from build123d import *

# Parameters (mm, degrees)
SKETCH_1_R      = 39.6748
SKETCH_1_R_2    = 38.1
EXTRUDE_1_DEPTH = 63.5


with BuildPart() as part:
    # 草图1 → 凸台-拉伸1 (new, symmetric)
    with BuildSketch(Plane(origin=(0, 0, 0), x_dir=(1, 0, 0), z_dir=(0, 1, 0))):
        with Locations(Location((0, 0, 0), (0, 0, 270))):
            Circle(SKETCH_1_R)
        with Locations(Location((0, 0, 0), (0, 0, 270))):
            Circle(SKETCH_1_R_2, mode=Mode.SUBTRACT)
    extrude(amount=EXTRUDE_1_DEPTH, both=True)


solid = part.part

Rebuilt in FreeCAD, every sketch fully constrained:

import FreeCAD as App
import Part
import Sketcher
Q = App.Units.Quantity

doc = App.newDocument("Part")
body = doc.addObject("PartDesign::Body", "Body")

sketch1 = body.newObject("Sketcher::SketchObject", "Sketch")
sketch1.AttachmentSupport = (doc.getObject("XZ_Plane"), [""])
sketch1.MapMode = "FlatFace"
sketch1.addGeometry(Part.Circle(App.Vector(0, 0, 0), App.Vector(0, 0, 1), 39.6748), False)
sketch1.addGeometry(Part.Circle(App.Vector(0, 0, 0), App.Vector(0, 0, 1), 38.1), False)
sketch1.addConstraint(Sketcher.Constraint("Coincident", 0, 3, -1, 1))
sketch1.addConstraint(Sketcher.Constraint("Coincident", 1, 3, -1, 1))
sketch1.addConstraint(Sketcher.Constraint("Diameter", 1, Q("3 in")))
sketch1.addConstraint(Sketcher.Constraint("Diameter", 0, Q("3.124 in")))
pad1 = body.newObject("PartDesign::Pad", "Pad")
pad1.Profile = sketch1
pad1.Length = Q("5 in")
pad1.Midplane = True

doc.recompute()
